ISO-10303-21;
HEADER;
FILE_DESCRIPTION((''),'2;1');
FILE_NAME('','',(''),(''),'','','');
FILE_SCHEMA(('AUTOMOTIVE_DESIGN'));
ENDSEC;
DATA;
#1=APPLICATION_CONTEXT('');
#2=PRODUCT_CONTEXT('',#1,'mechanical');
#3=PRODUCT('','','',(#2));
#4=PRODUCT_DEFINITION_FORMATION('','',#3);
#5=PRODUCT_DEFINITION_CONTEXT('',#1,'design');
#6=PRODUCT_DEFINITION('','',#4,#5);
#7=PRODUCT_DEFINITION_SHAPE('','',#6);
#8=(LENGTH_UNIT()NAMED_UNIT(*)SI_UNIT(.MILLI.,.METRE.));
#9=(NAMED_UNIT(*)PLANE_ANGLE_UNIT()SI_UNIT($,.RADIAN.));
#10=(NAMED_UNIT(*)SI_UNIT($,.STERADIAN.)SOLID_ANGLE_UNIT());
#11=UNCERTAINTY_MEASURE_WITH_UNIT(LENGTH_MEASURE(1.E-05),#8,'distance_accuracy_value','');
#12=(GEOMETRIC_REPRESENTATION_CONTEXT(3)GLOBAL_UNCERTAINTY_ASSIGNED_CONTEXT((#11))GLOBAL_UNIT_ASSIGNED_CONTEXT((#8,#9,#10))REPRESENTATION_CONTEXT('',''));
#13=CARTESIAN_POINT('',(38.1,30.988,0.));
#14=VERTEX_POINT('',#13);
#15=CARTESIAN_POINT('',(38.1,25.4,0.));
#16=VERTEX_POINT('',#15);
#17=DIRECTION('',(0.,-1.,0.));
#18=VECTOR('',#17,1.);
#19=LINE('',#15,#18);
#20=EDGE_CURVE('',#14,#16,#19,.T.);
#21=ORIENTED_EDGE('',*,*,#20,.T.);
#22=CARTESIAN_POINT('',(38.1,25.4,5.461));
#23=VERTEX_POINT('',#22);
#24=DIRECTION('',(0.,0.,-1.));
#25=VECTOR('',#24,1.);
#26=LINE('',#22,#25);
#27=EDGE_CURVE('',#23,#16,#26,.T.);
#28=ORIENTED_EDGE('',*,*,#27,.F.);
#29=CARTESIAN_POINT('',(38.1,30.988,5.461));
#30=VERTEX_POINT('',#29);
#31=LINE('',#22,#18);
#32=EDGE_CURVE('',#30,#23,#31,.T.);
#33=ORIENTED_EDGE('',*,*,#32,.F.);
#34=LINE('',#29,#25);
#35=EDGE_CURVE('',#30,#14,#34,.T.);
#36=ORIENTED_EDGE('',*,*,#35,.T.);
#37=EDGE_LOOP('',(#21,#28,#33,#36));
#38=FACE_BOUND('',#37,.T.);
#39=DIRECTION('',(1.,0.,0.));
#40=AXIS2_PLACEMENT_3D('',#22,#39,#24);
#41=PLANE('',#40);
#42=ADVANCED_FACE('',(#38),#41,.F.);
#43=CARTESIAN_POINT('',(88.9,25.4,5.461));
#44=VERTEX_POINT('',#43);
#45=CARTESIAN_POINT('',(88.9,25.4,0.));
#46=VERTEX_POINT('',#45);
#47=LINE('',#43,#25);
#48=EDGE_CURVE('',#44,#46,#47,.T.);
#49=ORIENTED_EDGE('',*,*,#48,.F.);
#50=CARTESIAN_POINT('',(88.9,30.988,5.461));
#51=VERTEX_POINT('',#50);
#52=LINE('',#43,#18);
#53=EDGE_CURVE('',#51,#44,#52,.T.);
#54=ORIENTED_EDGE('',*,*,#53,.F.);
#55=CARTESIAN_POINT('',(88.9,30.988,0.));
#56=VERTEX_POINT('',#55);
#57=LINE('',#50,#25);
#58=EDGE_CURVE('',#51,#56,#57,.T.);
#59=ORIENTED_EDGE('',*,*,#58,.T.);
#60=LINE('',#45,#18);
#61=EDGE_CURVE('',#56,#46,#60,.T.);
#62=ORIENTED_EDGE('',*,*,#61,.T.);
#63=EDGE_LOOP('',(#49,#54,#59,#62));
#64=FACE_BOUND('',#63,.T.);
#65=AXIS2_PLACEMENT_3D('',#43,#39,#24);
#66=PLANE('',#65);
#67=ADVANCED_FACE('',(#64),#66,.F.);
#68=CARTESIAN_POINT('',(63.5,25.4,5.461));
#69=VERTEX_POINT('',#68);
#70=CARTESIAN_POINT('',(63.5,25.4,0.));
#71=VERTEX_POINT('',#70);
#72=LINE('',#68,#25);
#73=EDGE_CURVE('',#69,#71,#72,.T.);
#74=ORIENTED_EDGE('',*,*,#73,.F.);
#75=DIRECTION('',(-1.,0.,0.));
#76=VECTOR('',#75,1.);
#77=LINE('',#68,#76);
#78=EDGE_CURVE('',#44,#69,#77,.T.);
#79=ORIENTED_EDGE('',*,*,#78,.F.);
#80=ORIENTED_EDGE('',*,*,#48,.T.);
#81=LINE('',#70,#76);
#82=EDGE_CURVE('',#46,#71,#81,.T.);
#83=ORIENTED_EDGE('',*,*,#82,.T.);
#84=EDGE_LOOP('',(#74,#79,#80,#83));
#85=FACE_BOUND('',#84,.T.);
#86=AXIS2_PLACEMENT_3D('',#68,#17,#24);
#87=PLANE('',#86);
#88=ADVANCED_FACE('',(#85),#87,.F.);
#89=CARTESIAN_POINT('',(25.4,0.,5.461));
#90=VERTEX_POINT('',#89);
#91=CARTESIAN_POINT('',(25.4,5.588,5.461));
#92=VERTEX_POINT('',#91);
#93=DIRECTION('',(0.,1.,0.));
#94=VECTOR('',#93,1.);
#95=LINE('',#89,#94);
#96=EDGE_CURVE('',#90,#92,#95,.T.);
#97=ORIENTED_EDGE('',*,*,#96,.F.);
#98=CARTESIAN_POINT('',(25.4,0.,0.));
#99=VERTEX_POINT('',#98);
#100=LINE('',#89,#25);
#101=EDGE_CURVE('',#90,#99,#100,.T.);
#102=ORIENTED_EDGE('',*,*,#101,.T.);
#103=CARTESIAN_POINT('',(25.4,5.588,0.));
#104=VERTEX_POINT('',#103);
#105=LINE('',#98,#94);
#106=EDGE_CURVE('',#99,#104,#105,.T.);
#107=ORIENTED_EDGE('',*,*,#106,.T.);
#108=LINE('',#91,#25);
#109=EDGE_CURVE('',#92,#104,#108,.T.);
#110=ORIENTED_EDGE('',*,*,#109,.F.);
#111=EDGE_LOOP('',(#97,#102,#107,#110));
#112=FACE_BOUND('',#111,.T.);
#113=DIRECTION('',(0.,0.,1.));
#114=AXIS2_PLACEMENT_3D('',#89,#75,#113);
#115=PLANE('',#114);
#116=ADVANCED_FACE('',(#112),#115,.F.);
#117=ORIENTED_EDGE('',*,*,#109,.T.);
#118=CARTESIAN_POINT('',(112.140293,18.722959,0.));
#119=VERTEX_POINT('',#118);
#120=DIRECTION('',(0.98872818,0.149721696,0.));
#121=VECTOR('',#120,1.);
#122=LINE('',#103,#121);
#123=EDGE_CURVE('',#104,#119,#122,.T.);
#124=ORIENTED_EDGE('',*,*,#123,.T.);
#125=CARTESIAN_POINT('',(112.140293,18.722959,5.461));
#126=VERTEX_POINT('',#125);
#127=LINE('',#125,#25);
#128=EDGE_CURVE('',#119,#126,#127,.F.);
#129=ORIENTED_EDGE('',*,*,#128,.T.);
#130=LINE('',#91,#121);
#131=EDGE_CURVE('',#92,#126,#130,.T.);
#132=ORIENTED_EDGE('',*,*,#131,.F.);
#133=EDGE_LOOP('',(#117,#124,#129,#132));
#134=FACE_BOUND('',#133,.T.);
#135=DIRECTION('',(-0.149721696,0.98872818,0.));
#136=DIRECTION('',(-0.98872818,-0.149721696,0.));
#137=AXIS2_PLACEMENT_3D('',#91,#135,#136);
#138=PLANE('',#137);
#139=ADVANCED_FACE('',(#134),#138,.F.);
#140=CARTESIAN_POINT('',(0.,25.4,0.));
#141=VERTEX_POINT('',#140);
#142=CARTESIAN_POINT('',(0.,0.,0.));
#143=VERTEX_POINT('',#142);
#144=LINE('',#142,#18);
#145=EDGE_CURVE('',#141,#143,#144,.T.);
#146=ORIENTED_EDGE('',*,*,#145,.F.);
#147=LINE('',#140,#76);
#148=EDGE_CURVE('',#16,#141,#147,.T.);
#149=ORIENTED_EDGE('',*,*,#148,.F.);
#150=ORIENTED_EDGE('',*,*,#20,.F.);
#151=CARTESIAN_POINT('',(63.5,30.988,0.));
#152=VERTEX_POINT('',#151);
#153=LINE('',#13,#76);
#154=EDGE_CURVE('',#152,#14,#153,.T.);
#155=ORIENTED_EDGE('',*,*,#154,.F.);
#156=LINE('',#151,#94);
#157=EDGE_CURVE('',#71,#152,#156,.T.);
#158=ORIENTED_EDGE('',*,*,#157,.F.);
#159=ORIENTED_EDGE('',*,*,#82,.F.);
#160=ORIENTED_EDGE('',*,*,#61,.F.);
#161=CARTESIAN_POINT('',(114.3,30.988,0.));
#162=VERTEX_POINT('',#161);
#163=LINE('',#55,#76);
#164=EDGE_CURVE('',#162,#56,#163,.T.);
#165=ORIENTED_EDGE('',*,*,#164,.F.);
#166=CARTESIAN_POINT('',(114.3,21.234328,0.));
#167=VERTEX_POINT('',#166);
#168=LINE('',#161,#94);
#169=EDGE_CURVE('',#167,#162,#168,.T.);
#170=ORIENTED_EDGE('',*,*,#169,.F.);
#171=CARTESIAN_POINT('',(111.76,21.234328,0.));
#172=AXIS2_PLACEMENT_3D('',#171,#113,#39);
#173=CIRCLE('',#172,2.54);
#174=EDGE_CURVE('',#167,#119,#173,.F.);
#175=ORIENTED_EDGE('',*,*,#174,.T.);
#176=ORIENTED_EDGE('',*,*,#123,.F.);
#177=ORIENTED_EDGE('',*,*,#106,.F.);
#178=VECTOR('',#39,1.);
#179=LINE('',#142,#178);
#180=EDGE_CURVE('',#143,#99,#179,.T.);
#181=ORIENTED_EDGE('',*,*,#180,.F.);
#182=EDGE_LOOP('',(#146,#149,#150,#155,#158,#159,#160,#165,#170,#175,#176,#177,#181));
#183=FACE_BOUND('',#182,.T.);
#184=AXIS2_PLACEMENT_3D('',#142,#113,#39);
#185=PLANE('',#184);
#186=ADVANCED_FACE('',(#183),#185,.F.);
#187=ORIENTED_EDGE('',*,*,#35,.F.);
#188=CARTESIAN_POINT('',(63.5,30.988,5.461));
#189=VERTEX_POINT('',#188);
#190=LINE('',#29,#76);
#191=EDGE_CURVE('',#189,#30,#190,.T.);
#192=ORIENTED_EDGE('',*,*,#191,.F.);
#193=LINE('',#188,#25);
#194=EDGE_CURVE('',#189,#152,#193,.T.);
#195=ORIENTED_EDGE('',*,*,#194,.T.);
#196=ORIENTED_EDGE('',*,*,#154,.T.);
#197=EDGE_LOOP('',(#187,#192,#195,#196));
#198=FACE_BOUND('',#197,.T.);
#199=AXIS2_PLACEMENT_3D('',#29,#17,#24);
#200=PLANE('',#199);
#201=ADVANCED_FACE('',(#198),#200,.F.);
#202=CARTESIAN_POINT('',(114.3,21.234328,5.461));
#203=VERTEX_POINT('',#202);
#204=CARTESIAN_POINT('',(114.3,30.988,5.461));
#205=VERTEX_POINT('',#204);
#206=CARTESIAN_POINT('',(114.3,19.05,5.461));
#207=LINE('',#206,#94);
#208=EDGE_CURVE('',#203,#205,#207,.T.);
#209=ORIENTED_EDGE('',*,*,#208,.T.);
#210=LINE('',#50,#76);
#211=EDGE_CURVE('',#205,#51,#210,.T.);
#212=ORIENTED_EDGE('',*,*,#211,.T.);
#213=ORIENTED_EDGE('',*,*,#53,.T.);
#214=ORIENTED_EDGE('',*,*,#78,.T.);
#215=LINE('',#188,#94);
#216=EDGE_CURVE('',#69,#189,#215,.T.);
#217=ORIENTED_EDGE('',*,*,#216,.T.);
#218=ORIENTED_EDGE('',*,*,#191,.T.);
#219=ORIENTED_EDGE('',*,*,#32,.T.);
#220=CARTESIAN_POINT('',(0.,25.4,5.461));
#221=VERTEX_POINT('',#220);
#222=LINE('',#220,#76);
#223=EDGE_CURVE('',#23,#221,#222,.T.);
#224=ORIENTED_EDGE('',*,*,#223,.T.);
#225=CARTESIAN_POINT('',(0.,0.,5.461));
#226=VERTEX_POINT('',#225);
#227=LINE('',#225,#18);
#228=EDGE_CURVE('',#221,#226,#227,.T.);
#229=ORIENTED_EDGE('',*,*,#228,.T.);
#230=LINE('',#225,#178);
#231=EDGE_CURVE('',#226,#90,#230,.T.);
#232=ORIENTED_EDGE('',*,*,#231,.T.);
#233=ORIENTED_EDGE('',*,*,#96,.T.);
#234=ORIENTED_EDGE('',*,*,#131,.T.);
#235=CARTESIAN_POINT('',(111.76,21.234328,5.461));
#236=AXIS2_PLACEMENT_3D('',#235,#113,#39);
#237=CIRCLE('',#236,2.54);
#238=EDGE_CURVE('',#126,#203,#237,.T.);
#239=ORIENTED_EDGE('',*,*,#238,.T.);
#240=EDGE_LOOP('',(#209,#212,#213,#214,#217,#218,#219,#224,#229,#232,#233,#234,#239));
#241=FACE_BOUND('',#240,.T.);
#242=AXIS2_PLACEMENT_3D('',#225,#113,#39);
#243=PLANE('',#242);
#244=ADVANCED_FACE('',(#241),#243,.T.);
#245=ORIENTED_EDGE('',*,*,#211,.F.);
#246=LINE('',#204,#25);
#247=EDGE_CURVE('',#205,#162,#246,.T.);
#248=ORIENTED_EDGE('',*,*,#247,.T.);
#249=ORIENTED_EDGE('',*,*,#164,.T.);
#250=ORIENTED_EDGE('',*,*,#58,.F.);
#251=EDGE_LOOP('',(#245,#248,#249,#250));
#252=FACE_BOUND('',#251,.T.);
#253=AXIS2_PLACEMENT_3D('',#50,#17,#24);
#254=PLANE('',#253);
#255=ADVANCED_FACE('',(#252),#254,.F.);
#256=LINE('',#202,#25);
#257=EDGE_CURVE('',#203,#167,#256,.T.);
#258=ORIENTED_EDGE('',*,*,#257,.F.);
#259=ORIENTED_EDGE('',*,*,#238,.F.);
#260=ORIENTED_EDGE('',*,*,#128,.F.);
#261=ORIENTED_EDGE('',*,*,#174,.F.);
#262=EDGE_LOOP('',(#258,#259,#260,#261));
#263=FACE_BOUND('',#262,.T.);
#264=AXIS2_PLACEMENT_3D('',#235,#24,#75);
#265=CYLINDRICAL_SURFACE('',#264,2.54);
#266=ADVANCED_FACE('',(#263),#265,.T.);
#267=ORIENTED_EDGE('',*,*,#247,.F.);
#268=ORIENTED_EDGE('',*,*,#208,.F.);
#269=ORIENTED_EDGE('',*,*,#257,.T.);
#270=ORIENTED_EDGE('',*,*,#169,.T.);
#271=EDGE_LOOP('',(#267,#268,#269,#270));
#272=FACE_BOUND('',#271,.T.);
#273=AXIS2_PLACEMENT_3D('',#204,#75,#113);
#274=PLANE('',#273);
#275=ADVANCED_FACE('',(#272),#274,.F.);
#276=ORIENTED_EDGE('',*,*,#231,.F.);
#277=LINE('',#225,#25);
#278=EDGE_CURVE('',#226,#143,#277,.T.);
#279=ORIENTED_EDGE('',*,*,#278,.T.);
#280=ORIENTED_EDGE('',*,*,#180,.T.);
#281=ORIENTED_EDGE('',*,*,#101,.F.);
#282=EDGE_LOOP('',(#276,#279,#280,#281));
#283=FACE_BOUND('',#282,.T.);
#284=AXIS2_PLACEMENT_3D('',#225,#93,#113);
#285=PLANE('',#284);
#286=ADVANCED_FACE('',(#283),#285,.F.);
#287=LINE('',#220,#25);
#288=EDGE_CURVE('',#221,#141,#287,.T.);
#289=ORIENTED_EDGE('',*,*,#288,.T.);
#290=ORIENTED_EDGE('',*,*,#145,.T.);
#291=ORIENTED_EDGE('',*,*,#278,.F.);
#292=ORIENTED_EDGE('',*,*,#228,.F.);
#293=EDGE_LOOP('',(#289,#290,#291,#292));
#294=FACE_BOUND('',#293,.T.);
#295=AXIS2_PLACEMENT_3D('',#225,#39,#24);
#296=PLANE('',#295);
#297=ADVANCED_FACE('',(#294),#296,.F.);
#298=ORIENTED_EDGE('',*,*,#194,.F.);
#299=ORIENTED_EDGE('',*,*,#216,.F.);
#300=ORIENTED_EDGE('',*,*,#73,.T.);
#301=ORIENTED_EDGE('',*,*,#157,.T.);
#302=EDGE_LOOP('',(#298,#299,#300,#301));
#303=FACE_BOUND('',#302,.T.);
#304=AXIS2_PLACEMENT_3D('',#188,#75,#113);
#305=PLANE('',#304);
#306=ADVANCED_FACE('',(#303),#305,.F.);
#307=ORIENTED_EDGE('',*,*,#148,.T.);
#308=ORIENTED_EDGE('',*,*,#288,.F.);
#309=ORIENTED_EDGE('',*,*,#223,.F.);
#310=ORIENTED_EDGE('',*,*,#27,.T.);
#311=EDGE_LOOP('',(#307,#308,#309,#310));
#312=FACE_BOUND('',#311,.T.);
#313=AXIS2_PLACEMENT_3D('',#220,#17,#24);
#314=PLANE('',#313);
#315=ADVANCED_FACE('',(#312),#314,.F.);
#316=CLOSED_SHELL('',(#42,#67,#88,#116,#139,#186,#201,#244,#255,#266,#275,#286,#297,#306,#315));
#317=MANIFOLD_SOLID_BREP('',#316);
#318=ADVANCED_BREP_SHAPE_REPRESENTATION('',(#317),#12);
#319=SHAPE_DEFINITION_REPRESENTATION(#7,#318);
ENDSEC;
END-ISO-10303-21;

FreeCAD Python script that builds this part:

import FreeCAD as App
import Part
import Sketcher
from FreeCAD import Vector
Q = App.Units.Quantity


def edges_at(feature, points):
    """Names of the edges that pass closest to the given points."""
    edges = feature.Shape.Edges
    near = lambda p: min(range(len(edges)), key=lambda i: edges[i].distToShape(Part.Vertex(*p))[0])
    return sorted({f"Edge{near(p) + 1}" for p in points})


def add_polygon(sketch, points):
    """Adds a closed chain of lines whose ends are joined by coincident constraints."""
    first, n = sketch.GeometryCount, len(points)
    for a, b in zip(points, points[1:] + points[:1]):
        sketch.addGeometry(Part.LineSegment(App.Vector(*a, 0), App.Vector(*b, 0)), False)
    for i in range(n):
        sketch.addConstraint(Sketcher.Constraint("Coincident", first + i, 2, first + (i + 1) % n, 1))

doc = App.newDocument("Part")
params = doc.addObject("Spreadsheet::Sheet", "Params")
for row, (alias, value) in enumerate([
    ("sketch1_width", "1 in"),
    ("sketch1_width2", "1.5 in"),
    ("sketch1_height", "0.22 in"),
    ("sketch1_height2", "0.47 in"),
    ("pad1_length", "0.215 in"),
    ("fillet_radius", "0.1 in"),
], start=1):
    params.set(f"A{row}", alias)
    params.set(f"B{row}", "=" + value)
    params.setAlias(f"B{row}", alias)

body = doc.addObject("PartDesign::Body", "Body")

# Sketch on XY plane
sketch1 = doc.addObject("Sketcher::SketchObject", "Sketch")
body.addObject(sketch1)
sketch1.AttachmentSupport = (doc.XY_Plane, [""])
sketch1.MapMode = "FlatFace"
add_polygon(sketch1, [(0, 25.4), (0, 0), (25.4, 0), (25.4, 5.588), (114.3, 19.05), (114.3, 30.988), (88.9, 30.988), (88.9, 25.4), (63.5, 25.4), (63.5, 30.988), (38.1, 30.988), (38.1, 25.4)])  # lines 0-11
sketch1.addConstraint(Sketcher.Constraint("Vertical", 0))
sketch1.addConstraint(Sketcher.Constraint("Horizontal", 1))
sketch1.addConstraint(Sketcher.Constraint("Vertical", 2))
sketch1.addConstraint(Sketcher.Constraint("Vertical", 4))
sketch1.addConstraint(Sketcher.Constraint("Horizontal", 5))
sketch1.addConstraint(Sketcher.Constraint("Vertical", 6))
sketch1.addConstraint(Sketcher.Constraint("Horizontal", 7))
sketch1.addConstraint(Sketcher.Constraint("Vertical", 8))
sketch1.addConstraint(Sketcher.Constraint("Horizontal", 9))
sketch1.addConstraint(Sketcher.Constraint("Vertical", 10))
sketch1.addConstraint(Sketcher.Constraint("Horizontal", 11))
sketch1.addConstraint(Sketcher.Constraint("Coincident", 0, 2, -1, 1))
sketch1.addConstraint(Sketcher.Constraint("Horizontal", 5, 2, 8, 2))
sketch1.addConstraint(Sketcher.Constraint("Horizontal", 7, 2, 10, 2))
sketch1.addConstraint(Sketcher.Constraint("Equal", 1, 5))
sketch1.addConstraint(Sketcher.Constraint("Equal", 5, 7))
sketch1.addConstraint(Sketcher.Constraint("Equal", 7, 9))
sketch1.addConstraint(Sketcher.Constraint("Equal", 9, 0))
sketch1.addConstraint(Sketcher.Constraint("Equal", 2, 6))
sketch1.addConstraint(Sketcher.Constraint("DistanceX", 1, 1, 1, 2, Q("1 in")))
sketch1.addConstraint(Sketcher.Constraint("DistanceX", 11, 2, 11, 1, Q("1.5 in")))
sketch1.addConstraint(Sketcher.Constraint("DistanceY", 2, 1, 2, 2, Q("0.22 in")))
sketch1.addConstraint(Sketcher.Constraint("DistanceY", 4, 1, 4, 2, Q("0.47 in")))
sketch1.setExpression("Constraints[31]", "Params.sketch1_width")
sketch1.setExpression("Constraints[32]", "Params.sketch1_width2")
sketch1.setExpression("Constraints[33]", "Params.sketch1_height")
sketch1.setExpression("Constraints[34]", "Params.sketch1_height2")
pad1 = doc.addObject("PartDesign::Pad", "Pad")
body.addObject(pad1)
pad1.Profile = sketch1
pad1.setExpression("Length", "Params.pad1_length")
doc.recompute()

fillet = doc.addObject("PartDesign::Fillet", "Fillet")
body.addObject(fillet)
fillet.Base = (pad1, edges_at(pad1, [(114.3, 19.05, 2.731)]))
fillet.setExpression("Radius", "Params.fillet_radius")

doc.recompute()
